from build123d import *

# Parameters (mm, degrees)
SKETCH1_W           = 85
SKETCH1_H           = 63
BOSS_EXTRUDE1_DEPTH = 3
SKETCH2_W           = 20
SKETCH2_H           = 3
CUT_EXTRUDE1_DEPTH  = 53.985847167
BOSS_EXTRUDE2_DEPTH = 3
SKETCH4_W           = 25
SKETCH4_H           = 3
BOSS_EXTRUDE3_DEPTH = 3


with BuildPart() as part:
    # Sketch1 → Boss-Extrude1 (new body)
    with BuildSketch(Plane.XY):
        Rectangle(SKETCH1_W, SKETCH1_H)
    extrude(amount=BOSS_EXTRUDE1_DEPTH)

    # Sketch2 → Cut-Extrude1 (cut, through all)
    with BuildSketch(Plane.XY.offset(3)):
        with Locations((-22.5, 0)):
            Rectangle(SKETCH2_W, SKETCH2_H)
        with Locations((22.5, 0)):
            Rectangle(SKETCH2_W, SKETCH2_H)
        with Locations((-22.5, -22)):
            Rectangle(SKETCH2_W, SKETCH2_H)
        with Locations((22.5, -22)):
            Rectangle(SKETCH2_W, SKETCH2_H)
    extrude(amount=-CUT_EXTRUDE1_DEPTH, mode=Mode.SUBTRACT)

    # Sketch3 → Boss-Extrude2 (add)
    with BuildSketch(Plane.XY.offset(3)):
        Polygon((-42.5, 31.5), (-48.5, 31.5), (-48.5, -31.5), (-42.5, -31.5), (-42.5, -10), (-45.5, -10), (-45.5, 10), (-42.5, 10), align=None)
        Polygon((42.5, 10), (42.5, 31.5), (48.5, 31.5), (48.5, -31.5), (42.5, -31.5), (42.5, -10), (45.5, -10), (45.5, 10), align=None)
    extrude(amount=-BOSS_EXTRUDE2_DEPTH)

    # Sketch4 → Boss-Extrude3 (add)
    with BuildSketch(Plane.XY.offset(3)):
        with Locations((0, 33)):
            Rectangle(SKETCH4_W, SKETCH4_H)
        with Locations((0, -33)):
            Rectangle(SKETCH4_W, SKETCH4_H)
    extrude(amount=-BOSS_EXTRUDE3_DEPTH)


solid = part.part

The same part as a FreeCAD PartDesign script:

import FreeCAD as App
import Part
import Sketcher
from FreeCAD import Vector


def add_polygon(sketch, points):
    """Adds a closed chain of lines whose ends are joined by coincident constraints."""
    first, n = sketch.GeometryCount, len(points)
    for a, b in zip(points, points[1:] + points[:1]):
        sketch.addGeometry(Part.LineSegment(App.Vector(*a, 0), App.Vector(*b, 0)), False)
    for i in range(n):
        sketch.addConstraint(Sketcher.Constraint("Coincident", first + i, 2, first + (i + 1) % n, 1))

doc = App.newDocument("Part")
body = doc.addObject("PartDesign::Body", "Body")

# Sketch on XY plane
sketch1 = body.newObject("Sketcher::SketchObject", "Sketch")
sketch1.AttachmentSupport = (doc.getObject("XY_Plane"), [""])
sketch1.MapMode = "FlatFace"
add_polygon(sketch1, [(-42, 32), (-42, -32), (42, -32), (42, 32)])  # lines 0-3
sketch1.addConstraint([
    Sketcher.Constraint("Vertical", 0),
    Sketcher.Constraint("Horizontal", 1),
    Sketcher.Constraint("Vertical", 2),
    Sketcher.Constraint("Horizontal", 3),
    Sketcher.Constraint("Symmetric", 0, 2, 2, 2, -1, 1),
    Sketcher.Constraint("DistanceX", 1, 1, 1, 2, 85.0),
    Sketcher.Constraint("DistanceY", 0, 2, 0, 1, 63.0),
])
pad1 = body.newObject("PartDesign::Pad", "Pad")
pad1.Profile = sketch1
pad1.Length = 3

# Sketch on XY plane
sketch2 = body.newObject("Sketcher::SketchObject", "Sketch001")
sketch2.AttachmentSupport = (doc.getObject("XY_Plane"), [""])
sketch2.MapMode = "FlatFace"
sketch2.AttachmentOffset = App.Placement(Vector(0, 0, 3), App.Rotation())
add_polygon(sketch2, [(-32.5, 1.5), (-32.5, -1.5), (-12.5, -1.5), (-12.5, 1.5)])  # lines 0-3
add_polygon(sketch2, [(12.5, 1.5), (12.5, -1.5), (32.5, -1.5), (32.5, 1.5)])  # lines 4-7
add_polygon(sketch2, [(-32.5, -20.5), (-32.5, -23.5), (-12.5, -23.5), (-12.5, -20.5)])  # lines 8-11
add_polygon(sketch2, [(12.5, -20.5), (12.5, -23.5), (32.5, -23.5), (32.5, -20.5)])  # lines 12-15
sketch2.addConstraint([
    Sketcher.Constraint("Vertical", 0),
    Sketcher.Constraint("Horizontal", 1),
    Sketcher.Constraint("Vertical", 2),
    Sketcher.Constraint("Horizontal", 3),
    Sketcher.Constraint("Vertical", 4),
    Sketcher.Constraint("Horizontal", 5),
    Sketcher.Constraint("Vertical", 6),
    Sketcher.Constraint("Horizontal", 7),
    Sketcher.Constraint("Vertical", 8),
    Sketcher.Constraint("Horizontal", 9),
    Sketcher.Constraint("Vertical", 10),
    Sketcher.Constraint("Horizontal", 11),
    Sketcher.Constraint("Vertical", 12),
    Sketcher.Constraint("Horizontal", 13),
    Sketcher.Constraint("Vertical", 14),
    Sketcher.Constraint("Horizontal", 15),
    Sketcher.Constraint("Symmetric", 2, 2, 4, 2, -1, 1),
    Sketcher.Constraint("Symmetric", 0, 2, 6, 2, -1, 1),
    Sketcher.Constraint("Symmetric", 9, 2, 12, 2, -2),
    Sketcher.Constraint("Symmetric", 11, 2, 14, 2, -2),
    Sketcher.Constraint("Horizontal", 1, 2, 4, 2),
    Sketcher.Constraint("Vertical", 3, 2, 8, 2),
    Sketcher.Constraint("Vertical", 2, 2, 9, 2),
    Sketcher.Constraint("Equal", 6, 8),
    Sketcher.Constraint("DistanceX", 1, 1, 1, 2, 20.0),
    Sketcher.Constraint("DistanceY", 0, 2, 0, 1, 3.0),
    Sketcher.Constraint("DistanceX", 1, 2, 4, 2, 25.0),
    Sketcher.Constraint("DistanceY", 8, 2, 0, 2, 22.0),
])
pocket1 = body.newObject("PartDesign::Pocket", "Pocket")
pocket1.Profile = sketch2
pocket1.Type = "ThroughAll"

# Sketch on XY plane
sketch3 = body.newObject("Sketcher::SketchObject", "Sketch002")
sketch3.AttachmentSupport = (doc.getObject("XY_Plane"), [""])
sketch3.MapMode = "FlatFace"
sketch3.AttachmentOffset = App.Placement(Vector(0, 0, 3), App.Rotation())
add_polygon(sketch3, [(-42.5, 31.5), (-48.5, 31.5), (-48.5, -31.5), (-42.5, -31.5), (-42.5, -10), (-45.5, -10), (-45.5, 10), (-42.5, 10)])  # lines 0-7
add_polygon(sketch3, [(42.5, 31.5), (42.5, 10), (45.5, 10), (45.5, -10), (42.5, -10), (42.5, -31.5), (48.5, -31.5), (48.5, 31.5)])  # lines 8-15
sketch3.addConstraint([
    Sketcher.Constraint("Horizontal", 0),
    Sketcher.Constraint("Vertical", 1),
    Sketcher.Constraint("Horizontal", 2),
    Sketcher.Constraint("Vertical", 3),
    Sketcher.Constraint("Horizontal", 4),
    Sketcher.Constraint("Vertical", 5),
    Sketcher.Constraint("Horizontal", 6),
    Sketcher.Constraint("Vertical", 7),
    Sketcher.Constraint("Vertical", 8),
    Sketcher.Constraint("Horizontal", 9),
    Sketcher.Constraint("Vertical", 10),
    Sketcher.Constraint("Horizontal", 11),
    Sketcher.Constraint("Vertical", 12),
    Sketcher.Constraint("Horizontal", 13),
    Sketcher.Constraint("Vertical", 14),
    Sketcher.Constraint("Horizontal", 15),
    Sketcher.Constraint("Symmetric", 3, 2, 8, 2, -1, 1),
    Sketcher.Constraint("Symmetric", 5, 2, 10, 2, -1, 1),
    Sketcher.Constraint("Symmetric", 7, 2, 12, 2, -1, 1),
    Sketcher.Constraint("Symmetric", 1, 2, 14, 2, -1, 1),
    Sketcher.Constraint("Symmetric", 6, 2, 8, 2, -2),
    Sketcher.Constraint("Horizontal", 2, 2, 12, 2),
    Sketcher.Constraint("DistanceX", 0, 2, 0, 1, 6.0),
    Sketcher.Constraint("DistanceX", 4, 2, 4, 1, 3.0),
    Sketcher.Constraint("DistanceY", 1, 2, 1, 1, 63.0),
    Sketcher.Constraint("DistanceY", 5, 1, 5, 2, 20.0),
    Sketcher.Constraint("DistanceX", 6, 2, 8, 2, 85.0),
])
pad2 = body.newObject("PartDesign::Pad", "Pad001")
pad2.Profile = sketch3
pad2.Length = 3
pad2.Reversed = True

# Sketch on XY plane
sketch4 = body.newObject("Sketcher::SketchObject", "Sketch003")
sketch4.AttachmentSupport = (doc.getObject("XY_Plane"), [""])
sketch4.MapMode = "FlatFace"
sketch4.AttachmentOffset = App.Placement(Vector(0, 0, 3), App.Rotation())
add_polygon(sketch4, [(-12.5, 34.5), (-12.5, 31.5), (12.5, 31.5), (12.5, 34.5)])  # lines 0-3
add_polygon(sketch4, [(-12.5, -31.5), (-12.5, -34.5), (12.5, -34.5), (12.5, -31.5)])  # lines 4-7
sketch4.addConstraint([
    Sketcher.Constraint("Vertical", 0),
    Sketcher.Constraint("Horizontal", 1),
    Sketcher.Constraint("Vertical", 2),
    Sketcher.Constraint("Horizontal", 3),
    Sketcher.Constraint("Vertical", 4),
    Sketcher.Constraint("Horizontal", 5),
    Sketcher.Constraint("Vertical", 6),
    Sketcher.Constraint("Horizontal", 7),
    Sketcher.Constraint("Symmetric", 2, 2, 4, 2, -1, 1),
    Sketcher.Constraint("Symmetric", 0, 2, 6, 2, -1, 1),
    Sketcher.Constraint("Vertical", 3, 2, 4, 2),
    Sketcher.Constraint("DistanceX", 1, 1, 1, 2, 25.0),
    Sketcher.Constraint("DistanceY", 0, 2, 0, 1, 3.0),
    Sketcher.Constraint("DistanceY", 4, 2, 0, 2, 66.0),
])
pad3 = body.newObject("PartDesign::Pad", "Pad002")
pad3.Profile = sketch4
pad3.Length = 3
pad3.Reversed = True

doc.recompute()
